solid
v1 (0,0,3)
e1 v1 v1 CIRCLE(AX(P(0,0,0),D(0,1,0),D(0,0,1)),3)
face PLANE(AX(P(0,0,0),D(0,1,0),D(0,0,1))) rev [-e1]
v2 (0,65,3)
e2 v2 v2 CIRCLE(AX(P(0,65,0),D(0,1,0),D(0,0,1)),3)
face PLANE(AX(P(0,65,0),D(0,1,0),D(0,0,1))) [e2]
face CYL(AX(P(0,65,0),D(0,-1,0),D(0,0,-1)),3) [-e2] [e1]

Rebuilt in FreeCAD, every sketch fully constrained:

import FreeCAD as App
import Part
import Sketcher

V = App.Vector

doc = App.newDocument("Part")
body = doc.addObject("PartDesign::Body", "Body")

# Sketch on XZ plane
sketch1 = body.newObject("Sketcher::SketchObject", "Sketch")
sketch1.AttachmentSupport = (doc.getObject("XZ_Plane"), [""])
sketch1.MapMode = "FlatFace"
sketch1.addGeometry(Part.Circle(V(0, 0, 0), V(0, 0, 1), 3), False)
sketch1.addConstraint([
    Sketcher.Constraint("Coincident", 0, 3, -1, 1),
    Sketcher.Constraint("Diameter", 0, 6.0),
])
pad1 = body.newObject("PartDesign::Pad", "Pad")
pad1.Profile = sketch1
pad1.Length = 65
pad1.Reversed = True

doc.recompute()
